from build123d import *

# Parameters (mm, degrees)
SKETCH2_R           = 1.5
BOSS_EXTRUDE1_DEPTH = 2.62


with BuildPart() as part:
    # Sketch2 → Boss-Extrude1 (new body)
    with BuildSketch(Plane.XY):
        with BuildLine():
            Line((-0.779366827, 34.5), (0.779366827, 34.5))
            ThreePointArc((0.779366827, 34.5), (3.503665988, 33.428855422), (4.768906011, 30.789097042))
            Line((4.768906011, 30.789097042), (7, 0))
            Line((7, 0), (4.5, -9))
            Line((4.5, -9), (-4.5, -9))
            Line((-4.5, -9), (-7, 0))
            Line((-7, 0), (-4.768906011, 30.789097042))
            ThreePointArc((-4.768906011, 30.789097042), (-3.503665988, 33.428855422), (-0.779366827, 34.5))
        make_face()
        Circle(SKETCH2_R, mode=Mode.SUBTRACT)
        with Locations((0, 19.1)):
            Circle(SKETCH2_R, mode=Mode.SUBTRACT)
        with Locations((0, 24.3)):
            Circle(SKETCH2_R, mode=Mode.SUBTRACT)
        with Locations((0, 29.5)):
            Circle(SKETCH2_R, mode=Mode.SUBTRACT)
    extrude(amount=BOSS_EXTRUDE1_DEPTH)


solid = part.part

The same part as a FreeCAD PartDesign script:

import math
import FreeCAD as App
import Part
import Sketcher

V = App.Vector
Q = App.Units.Quantity

doc = App.newDocument("Part")
body = doc.addObject("PartDesign::Body", "Body")

sketch1 = doc.addObject("Sketcher::SketchObject", "Sketch")
body.addObject(sketch1)
sketch1.AttachmentSupport = (doc.XY_Plane, [""])
sketch1.MapMode = "FlatFace"
sketch1.addGeometry(Part.LineSegment(V(0.779367, 34.5, 0), V(-0.779367, 34.5, 0)), False)
sketch1.addGeometry(Part.ArcOfCircle(Part.Circle(V(-0.779367, 30.5, 0), V(0, 0, 1), 4), math.radians(90), math.radians(175.855376)), False)
sketch1.addGeometry(Part.LineSegment(V(-4.768906, 30.789097, 0), V(-7, 0, 0)), False)
sketch1.addGeometry(Part.LineSegment(V(-7, 0, 0), V(-4.5, -9, 0)), False)
sketch1.addGeometry(Part.LineSegment(V(-4.5, -9, 0), V(4.5, -9, 0)), False)
sketch1.addGeometry(Part.LineSegment(V(4.5, -9, 0), V(7, 0, 0)), False)
sketch1.addGeometry(Part.LineSegment(V(7, 0, 0), V(4.768906, 30.789097, 0)), False)
sketch1.addGeometry(Part.ArcOfCircle(Part.Circle(V(0.779367, 30.5, 0), V(0, 0, 1), 4), math.radians(4.144624), math.radians(90)), False)
sketch1.addGeometry(Part.Circle(V(0, 0, 0), V(0, 0, 1), 1.5), False)
sketch1.addGeometry(Part.Circle(V(0, 19.1, 0), V(0, 0, 1), 1.5), False)
sketch1.addGeometry(Part.Circle(V(0, 24.3, 0), V(0, 0, 1), 1.5), False)
sketch1.addGeometry(Part.Circle(V(0, 29.5, 0), V(0, 0, 1), 1.5), False)
sketch1.addConstraint(Sketcher.Constraint("Tangent", 0, 2, 1, 1))
sketch1.addConstraint(Sketcher.Constraint("Tangent", 1, 2, 2, 1))
sketch1.addConstraint(Sketcher.Constraint("Coincident", 2, 2, 3, 1))
sketch1.addConstraint(Sketcher.Constraint("Coincident", 3, 2, 4, 1))
sketch1.addConstraint(Sketcher.Constraint("Coincident", 4, 2, 5, 1))
sketch1.addConstraint(Sketcher.Constraint("Coincident", 5, 2, 6, 1))
sketch1.addConstraint(Sketcher.Constraint("Tangent", 6, 2, 7, 1))
sketch1.addConstraint(Sketcher.Constraint("Tangent", 7, 2, 0, 1))
sketch1.addConstraint(Sketcher.Constraint("Horizontal", 0))
sketch1.addConstraint(Sketcher.Constraint("Horizontal", 4))
sketch1.addConstraint(Sketcher.Constraint("Coincident", 8, 3, -1, 1))
sketch1.addConstraint(Sketcher.Constraint("Equal", 1, 7))
sketch1.addConstraint(Sketcher.Constraint("Equal", 8, 9))
sketch1.addConstraint(Sketcher.Constraint("Equal", 9, 10))
sketch1.addConstraint(Sketcher.Constraint("Equal", 10, 11))
sketch1.addConstraint(Sketcher.Constraint("Symmetric", 2, 2, 5, 2, -1, 1))
sketch1.addConstraint(Sketcher.Constraint("Symmetric", 1, 2, 6, 2, -2))
sketch1.addConstraint(Sketcher.Constraint("PointOnObject", 9, 3, -2))
sketch1.addConstraint(Sketcher.Constraint("PointOnObject", 10, 3, -2))
sketch1.addConstraint(Sketcher.Constraint("PointOnObject", 11, 3, -2))
sketch1.addConstraint(Sketcher.Constraint("Equal", 3, 5))
sketch1.addConstraint(Sketcher.Constraint("Diameter", 8, Q("3 mm")))
sketch1.addConstraint(Sketcher.Constraint("Radius", 1, Q("4 mm")))
sketch1.addConstraint(Sketcher.Constraint("DistanceX", 4, 1, 4, 2, Q("9 mm")))
sketch1.addConstraint(Sketcher.Constraint("DistanceX", 2, 2, -1, 1, Q("7 mm")))
sketch1.addConstraint(Sketcher.Constraint("DistanceY", 3, 2, -1, 1, Q("9 mm")))
sketch1.addConstraint(Sketcher.Constraint("DistanceY", 11, 3, 1, 3, Q("1 mm")))
sketch1.addConstraint(Sketcher.Constraint("DistanceY", -1, 1, 1, 3, Q("30.5 mm")))
sketch1.addConstraint(Sketcher.Constraint("DistanceY", -1, 1, 9, 3, Q("19.1 mm")))
sketch1.addConstraint(Sketcher.Constraint("DistanceY", -1, 1, 10, 3, Q("24.3 mm")))
sketch1.addConstraint(Sketcher.Constraint("DistanceX", 0, 2, 0, 1, Q("1.558734 mm")))
pad1 = doc.addObject("PartDesign::Pad", "Pad")
body.addObject(pad1)
pad1.Profile = sketch1
pad1.Length = 2.62

doc.recompute()
